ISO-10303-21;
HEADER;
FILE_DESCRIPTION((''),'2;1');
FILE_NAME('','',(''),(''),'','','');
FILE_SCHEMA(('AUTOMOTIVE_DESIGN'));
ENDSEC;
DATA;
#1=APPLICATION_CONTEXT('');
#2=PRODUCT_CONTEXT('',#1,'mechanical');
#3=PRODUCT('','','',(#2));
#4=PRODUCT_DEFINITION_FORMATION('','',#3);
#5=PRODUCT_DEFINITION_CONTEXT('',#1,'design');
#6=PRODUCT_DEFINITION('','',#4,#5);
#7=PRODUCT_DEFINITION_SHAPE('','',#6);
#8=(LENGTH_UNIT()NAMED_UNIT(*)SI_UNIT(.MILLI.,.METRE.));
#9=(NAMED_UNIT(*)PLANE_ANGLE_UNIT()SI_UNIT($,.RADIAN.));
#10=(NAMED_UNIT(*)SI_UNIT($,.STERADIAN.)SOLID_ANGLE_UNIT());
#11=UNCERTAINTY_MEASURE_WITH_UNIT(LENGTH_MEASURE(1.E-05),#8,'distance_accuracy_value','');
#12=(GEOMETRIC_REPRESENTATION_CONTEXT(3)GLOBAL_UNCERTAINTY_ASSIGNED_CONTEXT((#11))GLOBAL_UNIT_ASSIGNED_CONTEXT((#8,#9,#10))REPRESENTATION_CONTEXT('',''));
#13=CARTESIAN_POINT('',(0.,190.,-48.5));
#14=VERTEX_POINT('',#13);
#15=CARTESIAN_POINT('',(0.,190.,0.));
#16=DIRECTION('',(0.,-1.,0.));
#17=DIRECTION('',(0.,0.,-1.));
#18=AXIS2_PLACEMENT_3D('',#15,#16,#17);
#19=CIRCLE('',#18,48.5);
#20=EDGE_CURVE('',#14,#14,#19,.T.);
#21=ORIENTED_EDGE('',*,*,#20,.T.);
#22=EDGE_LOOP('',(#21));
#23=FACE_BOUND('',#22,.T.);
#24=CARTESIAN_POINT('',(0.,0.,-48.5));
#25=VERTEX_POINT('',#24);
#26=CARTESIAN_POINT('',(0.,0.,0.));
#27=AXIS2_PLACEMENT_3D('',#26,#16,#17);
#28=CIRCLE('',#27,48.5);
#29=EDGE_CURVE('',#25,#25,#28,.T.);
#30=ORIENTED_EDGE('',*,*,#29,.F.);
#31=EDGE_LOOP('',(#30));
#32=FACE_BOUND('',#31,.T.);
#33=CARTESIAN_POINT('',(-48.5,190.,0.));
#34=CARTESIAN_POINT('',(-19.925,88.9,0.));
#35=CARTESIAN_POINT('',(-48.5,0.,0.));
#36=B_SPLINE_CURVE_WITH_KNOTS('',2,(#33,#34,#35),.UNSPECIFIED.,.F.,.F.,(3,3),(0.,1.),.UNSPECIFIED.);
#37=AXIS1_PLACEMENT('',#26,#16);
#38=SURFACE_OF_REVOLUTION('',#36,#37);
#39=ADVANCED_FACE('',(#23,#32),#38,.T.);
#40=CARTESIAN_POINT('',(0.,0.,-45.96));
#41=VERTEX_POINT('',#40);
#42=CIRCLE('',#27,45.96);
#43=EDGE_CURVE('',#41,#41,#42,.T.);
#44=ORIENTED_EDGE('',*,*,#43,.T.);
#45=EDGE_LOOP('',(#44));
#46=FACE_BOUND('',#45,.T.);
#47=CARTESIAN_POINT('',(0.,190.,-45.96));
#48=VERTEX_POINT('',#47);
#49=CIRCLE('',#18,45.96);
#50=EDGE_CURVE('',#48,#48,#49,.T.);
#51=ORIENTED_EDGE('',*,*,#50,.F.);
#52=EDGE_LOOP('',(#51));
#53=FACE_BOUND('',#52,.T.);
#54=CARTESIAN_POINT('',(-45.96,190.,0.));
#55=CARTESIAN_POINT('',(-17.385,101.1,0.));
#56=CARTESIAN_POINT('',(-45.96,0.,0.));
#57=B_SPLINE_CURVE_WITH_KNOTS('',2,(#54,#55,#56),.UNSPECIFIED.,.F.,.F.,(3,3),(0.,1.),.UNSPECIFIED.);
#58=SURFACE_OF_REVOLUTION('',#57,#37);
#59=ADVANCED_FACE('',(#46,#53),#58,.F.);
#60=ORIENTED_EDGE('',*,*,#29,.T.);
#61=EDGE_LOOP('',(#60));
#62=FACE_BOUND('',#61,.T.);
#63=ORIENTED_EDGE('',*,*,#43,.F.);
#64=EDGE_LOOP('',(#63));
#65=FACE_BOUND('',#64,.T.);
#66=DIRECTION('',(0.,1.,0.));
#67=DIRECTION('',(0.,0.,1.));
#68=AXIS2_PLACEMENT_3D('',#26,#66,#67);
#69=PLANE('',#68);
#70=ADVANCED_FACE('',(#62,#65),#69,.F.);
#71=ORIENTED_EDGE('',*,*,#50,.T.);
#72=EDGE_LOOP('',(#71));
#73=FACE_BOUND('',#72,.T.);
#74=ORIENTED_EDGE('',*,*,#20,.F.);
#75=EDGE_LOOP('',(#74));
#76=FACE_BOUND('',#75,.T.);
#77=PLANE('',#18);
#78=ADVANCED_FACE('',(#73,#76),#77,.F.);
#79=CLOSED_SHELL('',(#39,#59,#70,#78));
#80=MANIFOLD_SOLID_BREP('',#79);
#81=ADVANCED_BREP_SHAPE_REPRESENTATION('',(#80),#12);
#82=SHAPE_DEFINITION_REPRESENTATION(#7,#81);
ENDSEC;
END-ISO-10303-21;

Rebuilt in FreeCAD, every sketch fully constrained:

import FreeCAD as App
import Part
import Sketcher

V = App.Vector

doc = App.newDocument("Part")
body = doc.addObject("PartDesign::Body", "Body")

sketch1 = body.newObject("Sketcher::SketchObject", "Sketch")
sketch1.AttachmentSupport = (doc.getObject("XY_Plane"), [""])
sketch1.MapMode = "FlatFace"
sketch1.addGeometry([
    Part.BSplineCurve([V(-45.96, 190, 0), V(-17.385, 101.1, 0), V(-45.96, 0, 0)], [3, 3], [0, 1], False, 2, [1, 1, 1], False),
    Part.LineSegment(V(-45.96, 190, 0), V(-48.5, 190, 0)),
    Part.BSplineCurve([V(-48.5, 190, 0), V(-19.925, 88.9, 0), V(-48.5, 0, 0)], [3, 3], [0, 1], False, 2, [1, 1, 1], False),
    Part.LineSegment(V(-48.5, 0, 0), V(-45.96, 0, 0)),
], False)
sketch1.addConstraint([
    Sketcher.Constraint("Block", 0),
    Sketcher.Constraint("Block", 2),
    Sketcher.Constraint("Coincident", 0, 1, 1, 1),
    Sketcher.Constraint("Coincident", 1, 2, 2, 1),
    Sketcher.Constraint("Coincident", 2, 2, 3, 1),
    Sketcher.Constraint("Coincident", 3, 2, 0, 2),
])
revolution = body.newObject("PartDesign::Revolution", "Revolution")
revolution.Profile = sketch1
revolution.ReferenceAxis = (sketch1, ["V_Axis"])
revolution.Angle = 360

doc.recompute()
